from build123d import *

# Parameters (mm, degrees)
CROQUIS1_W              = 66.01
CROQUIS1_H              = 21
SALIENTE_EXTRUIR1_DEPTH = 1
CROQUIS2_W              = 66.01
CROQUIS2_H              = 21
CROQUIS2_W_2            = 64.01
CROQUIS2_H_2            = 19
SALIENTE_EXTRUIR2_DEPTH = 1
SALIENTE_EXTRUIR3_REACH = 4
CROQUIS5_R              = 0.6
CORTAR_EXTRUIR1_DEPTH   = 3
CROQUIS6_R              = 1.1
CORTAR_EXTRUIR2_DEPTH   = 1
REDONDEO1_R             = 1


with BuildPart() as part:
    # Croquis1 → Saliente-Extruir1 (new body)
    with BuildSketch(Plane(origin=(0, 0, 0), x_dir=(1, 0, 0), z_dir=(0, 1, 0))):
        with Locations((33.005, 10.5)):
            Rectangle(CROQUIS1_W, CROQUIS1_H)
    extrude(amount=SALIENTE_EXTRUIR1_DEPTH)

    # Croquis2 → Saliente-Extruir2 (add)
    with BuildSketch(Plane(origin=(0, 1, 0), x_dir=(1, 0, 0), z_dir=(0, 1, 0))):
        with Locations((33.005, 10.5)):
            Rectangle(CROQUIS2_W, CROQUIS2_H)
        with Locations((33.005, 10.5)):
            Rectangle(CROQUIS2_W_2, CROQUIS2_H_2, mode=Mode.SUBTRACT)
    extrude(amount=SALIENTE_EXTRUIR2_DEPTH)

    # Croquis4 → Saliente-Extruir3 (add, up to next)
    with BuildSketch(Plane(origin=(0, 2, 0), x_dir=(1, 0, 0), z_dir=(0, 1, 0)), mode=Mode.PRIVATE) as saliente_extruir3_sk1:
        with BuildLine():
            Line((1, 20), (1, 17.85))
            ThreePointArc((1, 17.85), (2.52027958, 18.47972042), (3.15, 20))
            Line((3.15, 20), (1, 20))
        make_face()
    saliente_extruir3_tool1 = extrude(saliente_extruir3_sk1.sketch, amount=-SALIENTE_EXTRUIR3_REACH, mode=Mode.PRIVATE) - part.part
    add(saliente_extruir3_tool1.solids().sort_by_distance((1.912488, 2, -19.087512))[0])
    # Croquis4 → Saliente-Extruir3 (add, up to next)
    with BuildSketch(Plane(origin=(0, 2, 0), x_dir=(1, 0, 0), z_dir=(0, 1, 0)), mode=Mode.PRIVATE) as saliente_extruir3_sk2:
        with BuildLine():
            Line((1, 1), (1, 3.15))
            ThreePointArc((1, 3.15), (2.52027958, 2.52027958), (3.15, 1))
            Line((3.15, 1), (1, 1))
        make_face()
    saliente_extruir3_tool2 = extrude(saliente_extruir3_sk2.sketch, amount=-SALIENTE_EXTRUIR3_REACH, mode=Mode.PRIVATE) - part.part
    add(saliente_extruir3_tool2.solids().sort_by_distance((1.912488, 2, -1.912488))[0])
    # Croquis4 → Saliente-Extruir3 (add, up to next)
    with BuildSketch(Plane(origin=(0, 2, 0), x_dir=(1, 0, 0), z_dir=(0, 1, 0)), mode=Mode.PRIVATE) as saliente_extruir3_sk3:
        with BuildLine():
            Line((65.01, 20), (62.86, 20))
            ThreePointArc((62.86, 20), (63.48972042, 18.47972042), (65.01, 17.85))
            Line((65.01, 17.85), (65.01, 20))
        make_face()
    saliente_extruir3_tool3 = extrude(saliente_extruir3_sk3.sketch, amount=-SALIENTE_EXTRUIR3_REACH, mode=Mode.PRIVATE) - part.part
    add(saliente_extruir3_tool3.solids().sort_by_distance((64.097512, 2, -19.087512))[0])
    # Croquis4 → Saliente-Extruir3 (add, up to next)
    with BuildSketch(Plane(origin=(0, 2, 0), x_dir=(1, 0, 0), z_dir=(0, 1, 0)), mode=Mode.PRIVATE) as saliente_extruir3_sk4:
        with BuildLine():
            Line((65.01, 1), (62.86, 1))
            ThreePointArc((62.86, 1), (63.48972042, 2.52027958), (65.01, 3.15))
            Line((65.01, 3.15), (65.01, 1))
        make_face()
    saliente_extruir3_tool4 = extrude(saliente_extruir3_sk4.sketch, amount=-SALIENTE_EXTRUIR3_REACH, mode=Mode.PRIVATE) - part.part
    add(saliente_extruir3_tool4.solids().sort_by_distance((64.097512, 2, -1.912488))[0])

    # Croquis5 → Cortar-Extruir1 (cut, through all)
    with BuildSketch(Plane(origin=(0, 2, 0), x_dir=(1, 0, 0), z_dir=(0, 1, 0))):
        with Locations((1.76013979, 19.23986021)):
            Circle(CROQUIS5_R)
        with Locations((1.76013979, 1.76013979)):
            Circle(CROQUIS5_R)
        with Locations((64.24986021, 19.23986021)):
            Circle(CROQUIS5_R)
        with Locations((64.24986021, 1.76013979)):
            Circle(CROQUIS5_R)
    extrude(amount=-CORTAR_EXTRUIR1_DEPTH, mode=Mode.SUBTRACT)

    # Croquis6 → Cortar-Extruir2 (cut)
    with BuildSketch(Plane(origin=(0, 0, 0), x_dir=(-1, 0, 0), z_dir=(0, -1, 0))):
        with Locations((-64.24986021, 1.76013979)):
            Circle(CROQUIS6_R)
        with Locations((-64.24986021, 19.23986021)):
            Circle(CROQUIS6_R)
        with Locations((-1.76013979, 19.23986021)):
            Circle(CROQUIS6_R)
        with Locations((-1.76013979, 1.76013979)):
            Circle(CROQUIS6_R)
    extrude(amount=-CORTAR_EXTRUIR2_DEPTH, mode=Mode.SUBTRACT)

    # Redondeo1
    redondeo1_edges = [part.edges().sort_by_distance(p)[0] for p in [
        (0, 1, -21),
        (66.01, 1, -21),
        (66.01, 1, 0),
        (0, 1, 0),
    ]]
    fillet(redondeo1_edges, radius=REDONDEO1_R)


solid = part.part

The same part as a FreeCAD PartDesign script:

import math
import FreeCAD as App
import Part
import Sketcher


def edges_at(feature, points):
    """Names of the edges that pass closest to the given points."""
    edges = feature.Shape.Edges
    near = lambda p: min(range(len(edges)), key=lambda i: edges[i].distToShape(Part.Vertex(*p))[0])
    return sorted({f"Edge{near(p) + 1}" for p in points})


def add_polygon(sketch, points):
    """Adds a closed chain of lines whose ends are joined by coincident constraints."""
    first, n = sketch.GeometryCount, len(points)
    for a, b in zip(points, points[1:] + points[:1]):
        sketch.addGeometry(Part.LineSegment(App.Vector(*a, 0), App.Vector(*b, 0)), False)
    for i in range(n):
        sketch.addConstraint(Sketcher.Constraint("Coincident", first + i, 2, first + (i + 1) % n, 1))

doc = App.newDocument("Part")
body = doc.addObject("PartDesign::Body", "Body")

# Sketch on XZ plane
sketch1 = body.newObject("Sketcher::SketchObject", "Sketch")
sketch1.AttachmentSupport = (doc.getObject("XZ_Plane"), [""])
sketch1.MapMode = "FlatFace"
add_polygon(sketch1, [(0, -21), (0, 0), (66, 0), (66, -21)])  # lines 0-3
sketch1.addConstraint(Sketcher.Constraint("Vertical", 0))
sketch1.addConstraint(Sketcher.Constraint("Horizontal", 1))
sketch1.addConstraint(Sketcher.Constraint("Vertical", 2))
sketch1.addConstraint(Sketcher.Constraint("Horizontal", 3))
sketch1.addConstraint(Sketcher.Constraint("Coincident", 0, 2, -1, 1))
sketch1.addConstraint(Sketcher.Constraint("DistanceY", 0, 1, 0, 2, 21.0))
sketch1.addConstraint(Sketcher.Constraint("DistanceX", 1, 1, 1, 2, 66.01))
pad1 = body.newObject("PartDesign::Pad", "Pad")
pad1.Profile = sketch1
pad1.Length = 1
pad1.Reversed = True

# Sketch on XZ plane
sketch2 = body.newObject("Sketcher::SketchObject", "Sketch001")
sketch2.AttachmentSupport = (doc.getObject("XZ_Plane"), [""])
sketch2.MapMode = "FlatFace"
sketch2.AttachmentOffset = App.Placement(App.Vector(0, 0, -1), App.Rotation())
add_polygon(sketch2, [(0, -21), (0, 0), (66, 0), (66, -21)])  # lines 0-3
add_polygon(sketch2, [(65, -1), (1, -1), (1, -20), (65, -20)])  # lines 4-7
sketch2.addConstraint(Sketcher.Constraint("Vertical", 0))
sketch2.addConstraint(Sketcher.Constraint("Horizontal", 1))
sketch2.addConstraint(Sketcher.Constraint("Vertical", 2))
sketch2.addConstraint(Sketcher.Constraint("Horizontal", 3))
sketch2.addConstraint(Sketcher.Constraint("Horizontal", 4))
sketch2.addConstraint(Sketcher.Constraint("Vertical", 5))
sketch2.addConstraint(Sketcher.Constraint("Horizontal", 6))
sketch2.addConstraint(Sketcher.Constraint("Vertical", 7))
sketch2.addConstraint(Sketcher.Constraint("Coincident", 0, 2, -1, 1))
sketch2.addConstraint(Sketcher.Constraint("DistanceY", 0, 1, 0, 2, 21.0))
sketch2.addConstraint(Sketcher.Constraint("DistanceY", 5, 2, 5, 1, 19.0))
sketch2.addConstraint(Sketcher.Constraint("DistanceX", -1, 1, 4, 2, 1.0))
sketch2.addConstraint(Sketcher.Constraint("DistanceY", 4, 2, -1, 1, 1.0))
sketch2.addConstraint(Sketcher.Constraint("DistanceX", 6, 2, 2, 2, 1.0))
sketch2.addConstraint(Sketcher.Constraint("DistanceX", 1, 1, 1, 2, 66.01))
pad2 = body.newObject("PartDesign::Pad", "Pad001")
pad2.Profile = sketch2
pad2.Length = 1
pad2.Reversed = True

# Sketch on XZ plane
sketch3 = body.newObject("Sketcher::SketchObject", "Sketch002")
sketch3.AttachmentSupport = (doc.getObject("XZ_Plane"), [""])
sketch3.MapMode = "FlatFace"
sketch3.AttachmentOffset = App.Placement(App.Vector(0, 0, -2), App.Rotation())
sketch3.addGeometry(Part.LineSegment(App.Vector(1, -20, 0), App.Vector(1, -17.9, 0)), False)
sketch3.addGeometry(Part.ArcOfCircle(Part.Circle(App.Vector(1, -20, 0), App.Vector(0, 0, 1), 2.1), math.radians(0), math.radians(90)), False)
sketch3.addGeometry(Part.LineSegment(App.Vector(3.1, -20, 0), App.Vector(1, -20, 0)), False)
sketch3.addConstraint(Sketcher.Constraint("Coincident", 0, 2, 1, 2))
sketch3.addConstraint(Sketcher.Constraint("Coincident", 1, 1, 2, 1))
sketch3.addConstraint(Sketcher.Constraint("Coincident", 2, 2, 0, 1))
sketch3.addConstraint(Sketcher.Constraint("Vertical", 0))
sketch3.addConstraint(Sketcher.Constraint("Horizontal", 2))
sketch3.addConstraint(Sketcher.Constraint("Coincident", 2, 2, 1, 3))
sketch3.addConstraint(Sketcher.Constraint("Radius", 1, 2.15))
sketch3.addConstraint(Sketcher.Constraint("DistanceX", -1, 1, 1, 3, 1.0))
sketch3.addConstraint(Sketcher.Constraint("DistanceY", 1, 3, -1, 1, 20.0))
pad3 = body.newObject("PartDesign::Pad", "Pad002")
pad3.Profile = sketch3
pad3.Type = "UpToFirst"

# Sketch on XZ plane
sketch4 = body.newObject("Sketcher::SketchObject", "Sketch003")
sketch4.AttachmentSupport = (doc.getObject("XZ_Plane"), [""])
sketch4.MapMode = "FlatFace"
sketch4.AttachmentOffset = App.Placement(App.Vector(0, 0, -2), App.Rotation())
sketch4.addGeometry(Part.LineSegment(App.Vector(1, -3.1, 0), App.Vector(1, -1, 0)), False)
sketch4.addGeometry(Part.LineSegment(App.Vector(1, -1, 0), App.Vector(3.1, -1, 0)), False)
sketch4.addGeometry(Part.ArcOfCircle(Part.Circle(App.Vector(1, -1, 0), App.Vector(0, 0, 1), 2.1), math.radians(-90), math.radians(0)), False)
sketch4.addConstraint(Sketcher.Constraint("Coincident", 0, 2, 1, 1))
sketch4.addConstraint(Sketcher.Constraint("Coincident", 1, 2, 2, 2))
sketch4.addConstraint(Sketcher.Constraint("Coincident", 2, 1, 0, 1))
sketch4.addConstraint(Sketcher.Constraint("Vertical", 0))
sketch4.addConstraint(Sketcher.Constraint("Horizontal", 1))
sketch4.addConstraint(Sketcher.Constraint("Coincident", 0, 2, 2, 3))
sketch4.addConstraint(Sketcher.Constraint("Radius", 2, 2.15))
sketch4.addConstraint(Sketcher.Constraint("DistanceX", -1, 1, 2, 3, 1.0))
sketch4.addConstraint(Sketcher.Constraint("DistanceY", 2, 3, -1, 1, 1.0))
pad4 = body.newObject("PartDesign::Pad", "Pad003")
pad4.Profile = sketch4
pad4.Type = "UpToFirst"

# Sketch on XZ plane
sketch5 = body.newObject("Sketcher::SketchObject", "Sketch004")
sketch5.AttachmentSupport = (doc.getObject("XZ_Plane"), [""])
sketch5.MapMode = "FlatFace"
sketch5.AttachmentOffset = App.Placement(App.Vector(0, 0, -2), App.Rotation())
sketch5.addGeometry(Part.LineSegment(App.Vector(65, -20, 0), App.Vector(62.9, -20, 0)), False)
sketch5.addGeometry(Part.ArcOfCircle(Part.Circle(App.Vector(65, -20, 0), App.Vector(0, 0, 1), 2.1), math.radians(90), math.radians(180)), False)
sketch5.addGeometry(Part.LineSegment(App.Vector(65, -17.9, 0), App.Vector(65, -20, 0)), False)
sketch5.addConstraint(Sketcher.Constraint("Coincident", 0, 2, 1, 2))
sketch5.addConstraint(Sketcher.Constraint("Coincident", 1, 1, 2, 1))
sketch5.addConstraint(Sketcher.Constraint("Coincident", 2, 2, 0, 1))
sketch5.addConstraint(Sketcher.Constraint("Horizontal", 0))
sketch5.addConstraint(Sketcher.Constraint("Vertical", 2))
sketch5.addConstraint(Sketcher.Constraint("Coincident", 2, 2, 1, 3))
sketch5.addConstraint(Sketcher.Constraint("Radius", 1, 2.15))
sketch5.addConstraint(Sketcher.Constraint("DistanceY", 1, 3, -1, 1, 20.0))
sketch5.addConstraint(Sketcher.Constraint("DistanceX", -1, 1, 1, 3, 65.01))
pad5 = body.newObject("PartDesign::Pad", "Pad004")
pad5.Profile = sketch5
pad5.Type = "UpToFirst"

# Sketch on XZ plane
sketch6 = body.newObject("Sketcher::SketchObject", "Sketch005")
sketch6.AttachmentSupport = (doc.getObject("XZ_Plane"), [""])
sketch6.MapMode = "FlatFace"
sketch6.AttachmentOffset = App.Placement(App.Vector(0, 0, -2), App.Rotation())
sketch6.addGeometry(Part.LineSegment(App.Vector(62.9, -1, 0), App.Vector(65, -1, 0)), False)
sketch6.addGeometry(Part.LineSegment(App.Vector(65, -1, 0), App.Vector(65, -3.1, 0)), False)
sketch6.addGeometry(Part.ArcOfCircle(Part.Circle(App.Vector(65, -1, 0), App.Vector(0, 0, 1), 2.1), math.radians(180), math.radians(270)), False)
sketch6.addConstraint(Sketcher.Constraint("Coincident", 0, 2, 1, 1))
sketch6.addConstraint(Sketcher.Constraint("Coincident", 1, 2, 2, 2))
sketch6.addConstraint(Sketcher.Constraint("Coincident", 2, 1, 0, 1))
sketch6.addConstraint(Sketcher.Constraint("Horizontal", 0))
sketch6.addConstraint(Sketcher.Constraint("Vertical", 1))
sketch6.addConstraint(Sketcher.Constraint("Coincident", 0, 2, 2, 3))
sketch6.addConstraint(Sketcher.Constraint("Radius", 2, 2.15))
sketch6.addConstraint(Sketcher.Constraint("DistanceY", 2, 3, -1, 1, 1.0))
sketch6.addConstraint(Sketcher.Constraint("DistanceX", -1, 1, 2, 3, 65.01))
pad6 = body.newObject("PartDesign::Pad", "Pad005")
pad6.Profile = sketch6
pad6.Type = "UpToFirst"

# Sketch on XZ plane
sketch7 = body.newObject("Sketcher::SketchObject", "Sketch006")
sketch7.AttachmentSupport = (doc.getObject("XZ_Plane"), [""])
sketch7.MapMode = "FlatFace"
sketch7.AttachmentOffset = App.Placement(App.Vector(0, 0, -2), App.Rotation())
sketch7.addGeometry(Part.Circle(App.Vector(1.8, -19.2, 0), App.Vector(0, 0, 1), 0.6), False)
sketch7.addGeometry(Part.Circle(App.Vector(1.8, -1.8, 0), App.Vector(0, 0, 1), 0.6), False)
sketch7.addGeometry(Part.Circle(App.Vector(64.2, -19.2, 0), App.Vector(0, 0, 1), 0.6), False)
sketch7.addGeometry(Part.Circle(App.Vector(64.2, -1.8, 0), App.Vector(0, 0, 1), 0.6), False)
sketch7.addConstraint(Sketcher.Constraint("Equal", 0, 1))
sketch7.addConstraint(Sketcher.Constraint("Equal", 1, 2))
sketch7.addConstraint(Sketcher.Constraint("Equal", 2, 3))
sketch7.addConstraint(Sketcher.Constraint("Horizontal", 0, 3, 2, 3))
sketch7.addConstraint(Sketcher.Constraint("Horizontal", 1, 3, 3, 3))
sketch7.addConstraint(Sketcher.Constraint("Vertical", 0, 3, 1, 3))
sketch7.addConstraint(Sketcher.Constraint("Vertical", 2, 3, 3, 3))
sketch7.addConstraint(Sketcher.Constraint("Diameter", 0, 1.2))
sketch7.addConstraint(Sketcher.Constraint("DistanceX", -1, 1, 0, 3, 1.76014))
sketch7.addConstraint(Sketcher.Constraint("DistanceY", 0, 3, -1, 1, 19.23986))
sketch7.addConstraint(Sketcher.Constraint("DistanceY", 1, 3, -1, 1, 1.76014))
sketch7.addConstraint(Sketcher.Constraint("DistanceX", -1, 1, 2, 3, 64.24986))
pocket1 = body.newObject("PartDesign::Pocket", "Pocket")
pocket1.Profile = sketch7
pocket1.Type = "ThroughAll"
pocket1.Reversed = True

# Sketch on XZ plane
sketch8 = body.newObject("Sketcher::SketchObject", "Sketch007")
sketch8.AttachmentSupport = (doc.getObject("XZ_Plane"), [""])
sketch8.MapMode = "FlatFace"
sketch8.addGeometry(Part.Circle(App.Vector(64.2, -1.8, 0), App.Vector(0, 0, 1), 1.1), False)
sketch8.addGeometry(Part.Circle(App.Vector(64.2, -19.2, 0), App.Vector(0, 0, 1), 1.1), False)
sketch8.addGeometry(Part.Circle(App.Vector(1.8, -19.2, 0), App.Vector(0, 0, 1), 1.1), False)
sketch8.addGeometry(Part.Circle(App.Vector(1.8, -1.8, 0), App.Vector(0, 0, 1), 1.1), False)
sketch8.addConstraint(Sketcher.Constraint("Equal", 0, 1))
sketch8.addConstraint(Sketcher.Constraint("Equal", 1, 2))
sketch8.addConstraint(Sketcher.Constraint("Equal", 2, 3))
sketch8.addConstraint(Sketcher.Constraint("Horizontal", 1, 3, 2, 3))
sketch8.addConstraint(Sketcher.Constraint("Horizontal", 0, 3, 3, 3))
sketch8.addConstraint(Sketcher.Constraint("Vertical", 0, 3, 1, 3))
sketch8.addConstraint(Sketcher.Constraint("Vertical", 2, 3, 3, 3))
sketch8.addConstraint(Sketcher.Constraint("Diameter", 0, 2.2))
sketch8.addConstraint(Sketcher.Constraint("DistanceX", -1, 1, 0, 3, 64.24986))
sketch8.addConstraint(Sketcher.Constraint("DistanceY", 0, 3, -1, 1, 1.76014))
sketch8.addConstraint(Sketcher.Constraint("DistanceY", 1, 3, -1, 1, 19.23986))
sketch8.addConstraint(Sketcher.Constraint("DistanceX", -1, 1, 2, 3, 1.76014))
pocket2 = body.newObject("PartDesign::Pocket", "Pocket001")
pocket2.Profile = sketch8
pocket2.Length = 1
doc.recompute()

fillet = body.newObject("PartDesign::Fillet", "Fillet")
fillet.Base = (pocket2, edges_at(pocket2, [
    (0, 1, -21),
    (66.01, 1, -21),
    (66.01, 1, 0),
    (0, 1, 0),
]))
fillet.Radius = 1

doc.recompute()
